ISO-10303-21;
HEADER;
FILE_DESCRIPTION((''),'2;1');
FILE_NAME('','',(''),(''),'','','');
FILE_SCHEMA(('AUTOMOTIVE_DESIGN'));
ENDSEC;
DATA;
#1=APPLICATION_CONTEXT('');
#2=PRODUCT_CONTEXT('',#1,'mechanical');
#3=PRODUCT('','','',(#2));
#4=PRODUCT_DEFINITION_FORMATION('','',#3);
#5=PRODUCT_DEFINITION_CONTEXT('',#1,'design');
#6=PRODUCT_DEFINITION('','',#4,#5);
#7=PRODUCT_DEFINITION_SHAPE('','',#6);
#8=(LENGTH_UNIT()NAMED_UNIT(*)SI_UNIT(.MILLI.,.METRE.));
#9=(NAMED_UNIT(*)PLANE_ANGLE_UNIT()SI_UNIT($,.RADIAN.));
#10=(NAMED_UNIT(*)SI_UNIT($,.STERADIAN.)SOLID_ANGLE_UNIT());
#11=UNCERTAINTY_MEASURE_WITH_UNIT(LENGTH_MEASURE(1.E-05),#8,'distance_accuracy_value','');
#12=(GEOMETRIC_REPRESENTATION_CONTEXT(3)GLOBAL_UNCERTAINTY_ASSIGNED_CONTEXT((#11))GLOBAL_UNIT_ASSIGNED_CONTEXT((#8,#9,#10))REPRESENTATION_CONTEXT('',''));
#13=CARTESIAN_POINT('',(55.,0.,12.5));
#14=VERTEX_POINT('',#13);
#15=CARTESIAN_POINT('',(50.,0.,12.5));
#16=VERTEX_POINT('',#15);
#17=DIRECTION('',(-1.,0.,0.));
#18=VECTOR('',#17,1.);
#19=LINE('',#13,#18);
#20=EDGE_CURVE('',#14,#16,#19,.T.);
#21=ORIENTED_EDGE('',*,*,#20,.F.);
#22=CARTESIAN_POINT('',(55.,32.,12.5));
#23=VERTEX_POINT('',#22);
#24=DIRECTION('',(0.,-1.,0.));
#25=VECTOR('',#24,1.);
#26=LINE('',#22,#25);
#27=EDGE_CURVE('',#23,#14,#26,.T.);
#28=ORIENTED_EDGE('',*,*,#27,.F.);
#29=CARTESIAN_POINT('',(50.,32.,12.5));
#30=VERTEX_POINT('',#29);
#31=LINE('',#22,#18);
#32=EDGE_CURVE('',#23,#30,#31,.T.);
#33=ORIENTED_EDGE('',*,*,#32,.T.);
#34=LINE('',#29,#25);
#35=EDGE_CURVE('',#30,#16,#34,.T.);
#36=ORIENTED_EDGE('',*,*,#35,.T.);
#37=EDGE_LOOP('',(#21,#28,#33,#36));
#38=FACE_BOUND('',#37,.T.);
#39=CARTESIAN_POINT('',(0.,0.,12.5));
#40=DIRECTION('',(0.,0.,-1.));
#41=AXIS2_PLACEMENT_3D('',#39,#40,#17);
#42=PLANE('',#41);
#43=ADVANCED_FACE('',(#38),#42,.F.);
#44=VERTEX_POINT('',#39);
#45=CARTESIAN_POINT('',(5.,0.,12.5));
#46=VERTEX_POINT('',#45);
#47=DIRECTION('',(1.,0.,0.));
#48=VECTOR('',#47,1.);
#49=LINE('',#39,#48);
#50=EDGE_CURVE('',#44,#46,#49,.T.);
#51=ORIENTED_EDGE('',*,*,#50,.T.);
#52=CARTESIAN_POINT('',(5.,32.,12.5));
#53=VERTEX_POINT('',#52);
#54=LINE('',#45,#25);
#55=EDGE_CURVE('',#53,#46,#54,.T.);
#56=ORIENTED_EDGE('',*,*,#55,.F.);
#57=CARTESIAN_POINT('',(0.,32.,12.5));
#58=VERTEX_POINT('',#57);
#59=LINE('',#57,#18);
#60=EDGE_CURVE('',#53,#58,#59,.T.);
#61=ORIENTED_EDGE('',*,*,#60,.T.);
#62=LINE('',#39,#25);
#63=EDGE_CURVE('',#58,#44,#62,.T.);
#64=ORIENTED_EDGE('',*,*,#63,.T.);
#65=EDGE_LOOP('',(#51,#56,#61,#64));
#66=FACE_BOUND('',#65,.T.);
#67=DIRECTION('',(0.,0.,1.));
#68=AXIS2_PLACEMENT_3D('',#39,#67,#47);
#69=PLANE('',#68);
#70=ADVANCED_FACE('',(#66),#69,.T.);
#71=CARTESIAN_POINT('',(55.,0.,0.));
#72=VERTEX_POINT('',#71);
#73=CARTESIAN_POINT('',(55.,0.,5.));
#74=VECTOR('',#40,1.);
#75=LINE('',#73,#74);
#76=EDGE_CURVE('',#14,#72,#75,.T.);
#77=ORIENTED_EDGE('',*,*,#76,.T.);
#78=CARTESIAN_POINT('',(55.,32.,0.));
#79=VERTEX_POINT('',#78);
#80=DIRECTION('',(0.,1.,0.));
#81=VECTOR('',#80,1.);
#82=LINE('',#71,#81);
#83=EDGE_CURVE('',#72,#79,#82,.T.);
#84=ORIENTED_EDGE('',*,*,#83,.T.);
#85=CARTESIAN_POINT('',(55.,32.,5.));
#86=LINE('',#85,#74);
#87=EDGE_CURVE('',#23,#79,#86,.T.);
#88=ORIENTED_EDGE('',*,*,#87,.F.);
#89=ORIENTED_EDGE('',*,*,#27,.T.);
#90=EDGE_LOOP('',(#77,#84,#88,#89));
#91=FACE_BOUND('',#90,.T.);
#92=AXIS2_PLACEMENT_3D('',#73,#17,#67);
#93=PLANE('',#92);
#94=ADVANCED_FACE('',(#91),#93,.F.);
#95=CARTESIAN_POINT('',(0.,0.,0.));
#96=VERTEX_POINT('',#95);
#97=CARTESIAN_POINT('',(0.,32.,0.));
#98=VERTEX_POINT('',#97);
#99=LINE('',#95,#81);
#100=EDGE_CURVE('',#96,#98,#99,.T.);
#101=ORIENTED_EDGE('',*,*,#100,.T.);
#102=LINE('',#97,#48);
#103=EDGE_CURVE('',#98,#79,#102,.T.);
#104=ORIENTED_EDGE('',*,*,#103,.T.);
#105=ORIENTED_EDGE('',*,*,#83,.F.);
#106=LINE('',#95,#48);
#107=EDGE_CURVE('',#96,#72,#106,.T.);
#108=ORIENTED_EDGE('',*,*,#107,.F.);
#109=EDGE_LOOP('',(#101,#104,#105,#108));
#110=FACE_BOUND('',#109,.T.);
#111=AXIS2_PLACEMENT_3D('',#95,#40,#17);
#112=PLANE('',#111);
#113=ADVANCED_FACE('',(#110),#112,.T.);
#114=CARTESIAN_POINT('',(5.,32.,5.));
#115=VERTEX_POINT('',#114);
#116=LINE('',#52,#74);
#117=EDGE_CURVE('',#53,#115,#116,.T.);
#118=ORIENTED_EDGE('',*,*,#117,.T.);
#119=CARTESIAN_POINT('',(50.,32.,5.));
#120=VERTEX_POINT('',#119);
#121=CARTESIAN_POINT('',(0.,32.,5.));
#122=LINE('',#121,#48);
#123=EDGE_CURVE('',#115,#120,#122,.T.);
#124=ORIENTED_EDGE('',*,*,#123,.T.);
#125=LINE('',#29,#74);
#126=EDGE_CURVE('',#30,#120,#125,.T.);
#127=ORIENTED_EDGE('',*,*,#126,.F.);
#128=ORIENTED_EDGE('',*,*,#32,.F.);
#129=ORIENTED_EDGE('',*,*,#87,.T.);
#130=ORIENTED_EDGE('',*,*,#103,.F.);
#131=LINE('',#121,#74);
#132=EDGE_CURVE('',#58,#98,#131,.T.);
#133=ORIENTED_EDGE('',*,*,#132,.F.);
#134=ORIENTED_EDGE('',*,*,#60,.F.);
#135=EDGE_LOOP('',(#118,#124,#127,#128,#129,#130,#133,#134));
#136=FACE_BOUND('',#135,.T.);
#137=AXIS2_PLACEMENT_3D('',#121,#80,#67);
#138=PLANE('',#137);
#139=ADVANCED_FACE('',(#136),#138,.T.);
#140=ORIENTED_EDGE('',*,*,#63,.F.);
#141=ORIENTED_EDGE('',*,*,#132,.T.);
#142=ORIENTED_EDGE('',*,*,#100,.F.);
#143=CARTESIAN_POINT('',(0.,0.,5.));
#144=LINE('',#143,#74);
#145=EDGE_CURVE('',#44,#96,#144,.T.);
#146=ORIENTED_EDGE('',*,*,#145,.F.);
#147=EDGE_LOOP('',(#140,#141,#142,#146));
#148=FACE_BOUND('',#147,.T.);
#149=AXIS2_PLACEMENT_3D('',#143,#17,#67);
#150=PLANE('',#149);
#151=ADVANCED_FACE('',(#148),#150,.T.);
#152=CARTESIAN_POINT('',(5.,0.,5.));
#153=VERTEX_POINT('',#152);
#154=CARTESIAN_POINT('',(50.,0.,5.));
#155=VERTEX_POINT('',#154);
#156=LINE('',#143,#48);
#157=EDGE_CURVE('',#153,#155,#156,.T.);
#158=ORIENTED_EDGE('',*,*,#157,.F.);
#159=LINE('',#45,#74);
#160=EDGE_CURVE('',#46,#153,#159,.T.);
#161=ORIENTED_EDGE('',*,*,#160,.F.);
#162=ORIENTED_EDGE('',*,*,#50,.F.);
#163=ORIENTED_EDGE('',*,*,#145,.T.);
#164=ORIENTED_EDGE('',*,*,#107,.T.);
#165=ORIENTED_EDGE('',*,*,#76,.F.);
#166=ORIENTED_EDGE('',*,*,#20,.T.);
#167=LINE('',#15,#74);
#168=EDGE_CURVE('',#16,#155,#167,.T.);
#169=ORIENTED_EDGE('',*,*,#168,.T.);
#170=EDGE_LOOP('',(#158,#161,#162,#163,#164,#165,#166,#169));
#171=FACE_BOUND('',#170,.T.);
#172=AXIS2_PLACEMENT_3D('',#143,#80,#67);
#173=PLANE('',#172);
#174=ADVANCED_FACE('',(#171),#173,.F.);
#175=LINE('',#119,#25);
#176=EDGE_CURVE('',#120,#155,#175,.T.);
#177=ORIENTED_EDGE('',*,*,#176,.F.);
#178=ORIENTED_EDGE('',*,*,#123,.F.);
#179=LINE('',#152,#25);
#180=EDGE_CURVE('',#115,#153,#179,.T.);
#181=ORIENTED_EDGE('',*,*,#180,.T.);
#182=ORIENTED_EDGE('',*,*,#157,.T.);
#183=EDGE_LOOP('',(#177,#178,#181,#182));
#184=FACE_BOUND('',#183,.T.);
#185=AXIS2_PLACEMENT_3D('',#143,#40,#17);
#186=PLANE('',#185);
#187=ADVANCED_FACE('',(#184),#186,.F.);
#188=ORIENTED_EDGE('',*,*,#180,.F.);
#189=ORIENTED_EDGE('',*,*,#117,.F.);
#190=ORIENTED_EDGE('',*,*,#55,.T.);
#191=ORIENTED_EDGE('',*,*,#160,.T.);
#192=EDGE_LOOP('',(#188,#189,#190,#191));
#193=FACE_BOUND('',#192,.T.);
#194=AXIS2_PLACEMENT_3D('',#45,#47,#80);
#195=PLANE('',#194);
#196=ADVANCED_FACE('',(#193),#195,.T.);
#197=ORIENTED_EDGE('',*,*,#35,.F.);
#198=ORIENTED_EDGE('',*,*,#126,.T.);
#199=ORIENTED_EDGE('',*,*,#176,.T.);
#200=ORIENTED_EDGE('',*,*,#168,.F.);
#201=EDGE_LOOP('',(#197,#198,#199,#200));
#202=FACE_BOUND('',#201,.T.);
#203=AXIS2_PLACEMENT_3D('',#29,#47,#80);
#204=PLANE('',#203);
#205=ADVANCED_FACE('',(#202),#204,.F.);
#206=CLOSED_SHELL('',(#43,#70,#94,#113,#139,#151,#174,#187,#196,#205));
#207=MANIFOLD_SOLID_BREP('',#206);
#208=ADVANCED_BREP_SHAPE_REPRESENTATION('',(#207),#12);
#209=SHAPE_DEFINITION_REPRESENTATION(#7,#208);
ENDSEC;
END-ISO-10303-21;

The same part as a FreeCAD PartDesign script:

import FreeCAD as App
import Part
import Sketcher
from FreeCAD import Vector
Q = App.Units.Quantity


def add_polygon(sketch, points):
    """Adds a closed chain of lines whose ends are joined by coincident constraints."""
    first, n = sketch.GeometryCount, len(points)
    for a, b in zip(points, points[1:] + points[:1]):
        sketch.addGeometry(Part.LineSegment(App.Vector(*a, 0), App.Vector(*b, 0)), False)
    for i in range(n):
        sketch.addConstraint(Sketcher.Constraint("Coincident", first + i, 2, first + (i + 1) % n, 1))

doc = App.newDocument("Part")
body = doc.addObject("PartDesign::Body", "Body")

# Sketch on XY plane
sketch1 = doc.addObject("Sketcher::SketchObject", "Sketch")
body.addObject(sketch1)
sketch1.AttachmentSupport = (doc.XY_Plane, [""])
sketch1.MapMode = "FlatFace"
add_polygon(sketch1, [(0, 32), (0, 0), (55, 0), (55, 32)])  # lines 0-3
sketch1.addConstraint([
    Sketcher.Constraint("Vertical", 0),
    Sketcher.Constraint("Horizontal", 1),
    Sketcher.Constraint("Vertical", 2),
    Sketcher.Constraint("Horizontal", 3),
    Sketcher.Constraint("Coincident", 0, 2, -1, 1),
    Sketcher.Constraint("DistanceX", 1, 1, 1, 2, Q("55 mm")),
    Sketcher.Constraint("DistanceY", 0, 2, 0, 1, Q("32 mm")),
])
pad1 = doc.addObject("PartDesign::Pad", "Pad")
body.addObject(pad1)
pad1.Profile = sketch1
pad1.Length = 5

# Sketch on XY plane
sketch2 = doc.addObject("Sketcher::SketchObject", "Sketch001")
body.addObject(sketch2)
sketch2.AttachmentSupport = (doc.XY_Plane, [""])
sketch2.MapMode = "FlatFace"
sketch2.AttachmentOffset = App.Placement(Vector(0, 0, 5), App.Rotation())
add_polygon(sketch2, [(0, 32), (0, 0), (5, 0), (5, 32)])  # lines 0-3
add_polygon(sketch2, [(50, 32), (50, 0), (55, 0), (55, 32)])  # lines 4-7
sketch2.addConstraint([
    Sketcher.Constraint("Vertical", 0),
    Sketcher.Constraint("Horizontal", 1),
    Sketcher.Constraint("Vertical", 2),
    Sketcher.Constraint("Horizontal", 3),
    Sketcher.Constraint("Vertical", 4),
    Sketcher.Constraint("Horizontal", 5),
    Sketcher.Constraint("Vertical", 6),
    Sketcher.Constraint("Horizontal", 7),
    Sketcher.Constraint("Coincident", 0, 2, -1, 1),
    Sketcher.Constraint("PointOnObject", 4, 2, -1),
    Sketcher.Constraint("Horizontal", 3, 2, 6, 2),
    Sketcher.Constraint("Equal", 3, 5),
    Sketcher.Constraint("DistanceX", 1, 1, 1, 2, Q("5 mm")),
    Sketcher.Constraint("DistanceY", 0, 2, 0, 1, Q("32 mm")),
    Sketcher.Constraint("DistanceX", -1, 1, 4, 2, Q("50 mm")),
])
pad2 = doc.addObject("PartDesign::Pad", "Pad001")
body.addObject(pad2)
pad2.Profile = sketch2
pad2.Length = 7.5

doc.recompute()
